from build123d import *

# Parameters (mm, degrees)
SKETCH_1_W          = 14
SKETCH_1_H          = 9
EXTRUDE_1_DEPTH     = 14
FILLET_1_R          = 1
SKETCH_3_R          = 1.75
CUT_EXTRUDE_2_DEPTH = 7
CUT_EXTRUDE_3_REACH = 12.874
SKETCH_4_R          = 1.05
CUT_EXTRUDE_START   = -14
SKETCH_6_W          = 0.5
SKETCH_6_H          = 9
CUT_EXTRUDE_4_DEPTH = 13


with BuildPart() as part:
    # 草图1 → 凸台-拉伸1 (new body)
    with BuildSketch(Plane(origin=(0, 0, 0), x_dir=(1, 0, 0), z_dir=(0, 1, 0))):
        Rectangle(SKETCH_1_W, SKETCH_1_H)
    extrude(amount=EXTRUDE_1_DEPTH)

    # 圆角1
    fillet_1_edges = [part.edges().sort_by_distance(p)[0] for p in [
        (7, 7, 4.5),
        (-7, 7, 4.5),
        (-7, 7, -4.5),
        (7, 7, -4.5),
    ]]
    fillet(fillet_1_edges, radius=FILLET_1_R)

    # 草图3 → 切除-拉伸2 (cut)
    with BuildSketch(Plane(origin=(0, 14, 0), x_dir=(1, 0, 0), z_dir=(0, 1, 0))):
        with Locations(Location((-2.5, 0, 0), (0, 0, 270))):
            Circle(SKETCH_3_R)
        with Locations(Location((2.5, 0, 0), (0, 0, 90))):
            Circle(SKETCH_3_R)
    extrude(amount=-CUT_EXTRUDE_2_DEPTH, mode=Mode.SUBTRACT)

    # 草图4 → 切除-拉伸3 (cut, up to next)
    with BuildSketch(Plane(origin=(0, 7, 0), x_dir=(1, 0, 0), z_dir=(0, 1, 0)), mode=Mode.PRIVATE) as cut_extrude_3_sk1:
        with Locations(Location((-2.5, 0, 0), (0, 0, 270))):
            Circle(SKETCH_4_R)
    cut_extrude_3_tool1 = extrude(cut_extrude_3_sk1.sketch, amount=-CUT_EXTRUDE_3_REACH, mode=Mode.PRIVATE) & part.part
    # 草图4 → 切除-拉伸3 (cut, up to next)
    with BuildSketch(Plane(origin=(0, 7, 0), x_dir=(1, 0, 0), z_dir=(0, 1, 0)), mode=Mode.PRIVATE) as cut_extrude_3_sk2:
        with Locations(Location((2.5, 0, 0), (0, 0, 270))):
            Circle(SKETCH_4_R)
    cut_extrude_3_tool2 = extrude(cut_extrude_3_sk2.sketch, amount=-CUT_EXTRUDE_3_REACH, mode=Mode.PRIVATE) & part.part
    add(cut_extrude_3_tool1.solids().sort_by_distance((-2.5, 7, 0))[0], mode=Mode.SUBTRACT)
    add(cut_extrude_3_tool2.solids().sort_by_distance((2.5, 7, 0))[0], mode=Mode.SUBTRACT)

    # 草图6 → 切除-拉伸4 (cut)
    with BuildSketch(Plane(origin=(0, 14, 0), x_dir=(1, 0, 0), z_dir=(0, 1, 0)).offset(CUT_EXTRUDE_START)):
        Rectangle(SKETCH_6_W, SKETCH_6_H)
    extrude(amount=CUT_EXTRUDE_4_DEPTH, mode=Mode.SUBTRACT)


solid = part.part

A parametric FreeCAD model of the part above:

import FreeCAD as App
import Part
import Sketcher
from FreeCAD import Vector
Q = App.Units.Quantity


def edges_at(feature, points):
    """Names of the edges that pass closest to the given points."""
    edges = feature.Shape.Edges
    near = lambda p: min(range(len(edges)), key=lambda i: edges[i].distToShape(Part.Vertex(*p))[0])
    return sorted({f"Edge{near(p) + 1}" for p in points})

doc = App.newDocument("Part")
body = doc.addObject("PartDesign::Body", "Body")

sketch1 = body.newObject("Sketcher::SketchObject", "Sketch")
sketch1.AttachmentSupport = (doc.getObject("XZ_Plane"), [""])
sketch1.MapMode = "FlatFace"
sketch1.addGeometry([
    Part.LineSegment(Vector(-7, -4, 0), Vector(-7, 4, 0)),
    Part.LineSegment(Vector(-7, 4, 0), Vector(7, 4, 0)),
    Part.LineSegment(Vector(7, 4, 0), Vector(7, -4, 0)),
    Part.LineSegment(Vector(7, -4, 0), Vector(-7, -4, 0)),
], False)
sketch1.addConstraint([
    Sketcher.Constraint("Coincident", 0, 2, 1, 1),
    Sketcher.Constraint("Coincident", 1, 2, 2, 1),
    Sketcher.Constraint("Coincident", 2, 2, 3, 1),
    Sketcher.Constraint("Coincident", 3, 2, 0, 1),
    Sketcher.Constraint("Vertical", 0),
    Sketcher.Constraint("Horizontal", 1),
    Sketcher.Constraint("Vertical", 2),
    Sketcher.Constraint("Horizontal", 3),
    Sketcher.Constraint("Symmetric", 0, 2, 2, 2, -1, 1),
    Sketcher.Constraint("DistanceX", 1, 1, 1, 2, Q("14 mm")),
    Sketcher.Constraint("DistanceY", 0, 1, 0, 2, Q("9 mm")),
])
pad1 = body.newObject("PartDesign::Pad", "Pad")
pad1.Profile = sketch1
pad1.Length = 14
pad1.Reversed = True
doc.recompute()

fillet = body.newObject("PartDesign::Fillet", "Fillet")
fillet.Base = (pad1, edges_at(pad1, [
    (7, 7, 4.5),
    (-7, 7, 4.5),
    (-7, 7, -4.5),
    (7, 7, -4.5),
]))
fillet.Radius = 1

sketch2 = body.newObject("Sketcher::SketchObject", "Sketch001")
sketch2.AttachmentSupport = (doc.getObject("XZ_Plane"), [""])
sketch2.MapMode = "FlatFace"
sketch2.AttachmentOffset = App.Placement(Vector(0, 0, -14), App.Rotation())
sketch2.addGeometry([
    Part.Circle(Vector(-2.5, 0, 0), Vector(0, 0, 1), 1.8),
    Part.Circle(Vector(2.5, 0, 0), Vector(0, 0, 1), 1.8),
], False)
sketch2.addConstraint([
    Sketcher.Constraint("Equal", 0, 1),
    Sketcher.Constraint("Symmetric", 0, 3, 1, 3, -1, 1),
    Sketcher.Constraint("PointOnObject", 0, 3, -1),
    Sketcher.Constraint("Diameter", 0, Q("3.5 mm")),
    Sketcher.Constraint("DistanceX", 0, 3, 1, 3, Q("5 mm")),
])
pocket1 = body.newObject("PartDesign::Pocket", "Pocket")
pocket1.Profile = sketch2
pocket1.Length = 7
pocket1.Reversed = True

sketch3 = body.newObject("Sketcher::SketchObject", "Sketch002")
sketch3.AttachmentSupport = (doc.getObject("XZ_Plane"), [""])
sketch3.MapMode = "FlatFace"
sketch3.AttachmentOffset = App.Placement(Vector(0, 0, -7), App.Rotation())
sketch3.addGeometry(Part.Circle(Vector(-2.5, 0, 0), Vector(0, 0, 1), 1.1), False)
sketch3.addConstraint([
    Sketcher.Constraint("PointOnObject", 0, 3, -1),
    Sketcher.Constraint("Diameter", 0, Q("2.1 mm")),
    Sketcher.Constraint("DistanceX", 0, 3, -1, 1, Q("2.5 mm")),
])
pocket2 = body.newObject("PartDesign::Pocket", "Pocket001")
pocket2.Profile = sketch3
pocket2.Type = "UpToFirst"
pocket2.Reversed = True

sketch4 = body.newObject("Sketcher::SketchObject", "Sketch003")
sketch4.AttachmentSupport = (doc.getObject("XZ_Plane"), [""])
sketch4.MapMode = "FlatFace"
sketch4.AttachmentOffset = App.Placement(Vector(0, 0, -7), App.Rotation())
sketch4.addGeometry(Part.Circle(Vector(2.5, 0, 0), Vector(0, 0, 1), 1.1), False)
sketch4.addConstraint([
    Sketcher.Constraint("PointOnObject", 0, 3, -1),
    Sketcher.Constraint("Diameter", 0, Q("2.1 mm")),
    Sketcher.Constraint("DistanceX", -1, 1, 0, 3, Q("2.5 mm")),
])
pocket3 = body.newObject("PartDesign::Pocket", "Pocket002")
pocket3.Profile = sketch4
pocket3.Type = "UpToFirst"
pocket3.Reversed = True

sketch5 = body.newObject("Sketcher::SketchObject", "Sketch004")
sketch5.AttachmentSupport = (doc.getObject("XZ_Plane"), [""])
sketch5.MapMode = "FlatFace"
sketch5.addGeometry([
    Part.LineSegment(Vector(-0.2, -4.5, 0), Vector(-0.2, 4.5, 0)),
    Part.LineSegment(Vector(-0.2, 4.5, 0), Vector(0.2, 4.5, 0)),
    Part.LineSegment(Vector(0.2, 4.5, 0), Vector(0.2, -4.5, 0)),
    Part.LineSegment(Vector(0.2, -4.5, 0), Vector(-0.2, -4.5, 0)),
], False)
sketch5.addConstraint([
    Sketcher.Constraint("Coincident", 0, 2, 1, 1),
    Sketcher.Constraint("Coincident", 1, 2, 2, 1),
    Sketcher.Constraint("Coincident", 2, 2, 3, 1),
    Sketcher.Constraint("Coincident", 3, 2, 0, 1),
    Sketcher.Constraint("Vertical", 0),
    Sketcher.Constraint("Horizontal", 1),
    Sketcher.Constraint("Vertical", 2),
    Sketcher.Constraint("Horizontal", 3),
    Sketcher.Constraint("Symmetric", 0, 2, 2, 2, -1, 1),
    Sketcher.Constraint("DistanceY", 0, 1, 0, 2, Q("9 mm")),
    Sketcher.Constraint("DistanceX", 1, 1, 1, 2, Q("0.5 mm")),
])
pocket4 = body.newObject("PartDesign::Pocket", "Pocket003")
pocket4.Profile = sketch5
pocket4.Length = 13

doc.recompute()
